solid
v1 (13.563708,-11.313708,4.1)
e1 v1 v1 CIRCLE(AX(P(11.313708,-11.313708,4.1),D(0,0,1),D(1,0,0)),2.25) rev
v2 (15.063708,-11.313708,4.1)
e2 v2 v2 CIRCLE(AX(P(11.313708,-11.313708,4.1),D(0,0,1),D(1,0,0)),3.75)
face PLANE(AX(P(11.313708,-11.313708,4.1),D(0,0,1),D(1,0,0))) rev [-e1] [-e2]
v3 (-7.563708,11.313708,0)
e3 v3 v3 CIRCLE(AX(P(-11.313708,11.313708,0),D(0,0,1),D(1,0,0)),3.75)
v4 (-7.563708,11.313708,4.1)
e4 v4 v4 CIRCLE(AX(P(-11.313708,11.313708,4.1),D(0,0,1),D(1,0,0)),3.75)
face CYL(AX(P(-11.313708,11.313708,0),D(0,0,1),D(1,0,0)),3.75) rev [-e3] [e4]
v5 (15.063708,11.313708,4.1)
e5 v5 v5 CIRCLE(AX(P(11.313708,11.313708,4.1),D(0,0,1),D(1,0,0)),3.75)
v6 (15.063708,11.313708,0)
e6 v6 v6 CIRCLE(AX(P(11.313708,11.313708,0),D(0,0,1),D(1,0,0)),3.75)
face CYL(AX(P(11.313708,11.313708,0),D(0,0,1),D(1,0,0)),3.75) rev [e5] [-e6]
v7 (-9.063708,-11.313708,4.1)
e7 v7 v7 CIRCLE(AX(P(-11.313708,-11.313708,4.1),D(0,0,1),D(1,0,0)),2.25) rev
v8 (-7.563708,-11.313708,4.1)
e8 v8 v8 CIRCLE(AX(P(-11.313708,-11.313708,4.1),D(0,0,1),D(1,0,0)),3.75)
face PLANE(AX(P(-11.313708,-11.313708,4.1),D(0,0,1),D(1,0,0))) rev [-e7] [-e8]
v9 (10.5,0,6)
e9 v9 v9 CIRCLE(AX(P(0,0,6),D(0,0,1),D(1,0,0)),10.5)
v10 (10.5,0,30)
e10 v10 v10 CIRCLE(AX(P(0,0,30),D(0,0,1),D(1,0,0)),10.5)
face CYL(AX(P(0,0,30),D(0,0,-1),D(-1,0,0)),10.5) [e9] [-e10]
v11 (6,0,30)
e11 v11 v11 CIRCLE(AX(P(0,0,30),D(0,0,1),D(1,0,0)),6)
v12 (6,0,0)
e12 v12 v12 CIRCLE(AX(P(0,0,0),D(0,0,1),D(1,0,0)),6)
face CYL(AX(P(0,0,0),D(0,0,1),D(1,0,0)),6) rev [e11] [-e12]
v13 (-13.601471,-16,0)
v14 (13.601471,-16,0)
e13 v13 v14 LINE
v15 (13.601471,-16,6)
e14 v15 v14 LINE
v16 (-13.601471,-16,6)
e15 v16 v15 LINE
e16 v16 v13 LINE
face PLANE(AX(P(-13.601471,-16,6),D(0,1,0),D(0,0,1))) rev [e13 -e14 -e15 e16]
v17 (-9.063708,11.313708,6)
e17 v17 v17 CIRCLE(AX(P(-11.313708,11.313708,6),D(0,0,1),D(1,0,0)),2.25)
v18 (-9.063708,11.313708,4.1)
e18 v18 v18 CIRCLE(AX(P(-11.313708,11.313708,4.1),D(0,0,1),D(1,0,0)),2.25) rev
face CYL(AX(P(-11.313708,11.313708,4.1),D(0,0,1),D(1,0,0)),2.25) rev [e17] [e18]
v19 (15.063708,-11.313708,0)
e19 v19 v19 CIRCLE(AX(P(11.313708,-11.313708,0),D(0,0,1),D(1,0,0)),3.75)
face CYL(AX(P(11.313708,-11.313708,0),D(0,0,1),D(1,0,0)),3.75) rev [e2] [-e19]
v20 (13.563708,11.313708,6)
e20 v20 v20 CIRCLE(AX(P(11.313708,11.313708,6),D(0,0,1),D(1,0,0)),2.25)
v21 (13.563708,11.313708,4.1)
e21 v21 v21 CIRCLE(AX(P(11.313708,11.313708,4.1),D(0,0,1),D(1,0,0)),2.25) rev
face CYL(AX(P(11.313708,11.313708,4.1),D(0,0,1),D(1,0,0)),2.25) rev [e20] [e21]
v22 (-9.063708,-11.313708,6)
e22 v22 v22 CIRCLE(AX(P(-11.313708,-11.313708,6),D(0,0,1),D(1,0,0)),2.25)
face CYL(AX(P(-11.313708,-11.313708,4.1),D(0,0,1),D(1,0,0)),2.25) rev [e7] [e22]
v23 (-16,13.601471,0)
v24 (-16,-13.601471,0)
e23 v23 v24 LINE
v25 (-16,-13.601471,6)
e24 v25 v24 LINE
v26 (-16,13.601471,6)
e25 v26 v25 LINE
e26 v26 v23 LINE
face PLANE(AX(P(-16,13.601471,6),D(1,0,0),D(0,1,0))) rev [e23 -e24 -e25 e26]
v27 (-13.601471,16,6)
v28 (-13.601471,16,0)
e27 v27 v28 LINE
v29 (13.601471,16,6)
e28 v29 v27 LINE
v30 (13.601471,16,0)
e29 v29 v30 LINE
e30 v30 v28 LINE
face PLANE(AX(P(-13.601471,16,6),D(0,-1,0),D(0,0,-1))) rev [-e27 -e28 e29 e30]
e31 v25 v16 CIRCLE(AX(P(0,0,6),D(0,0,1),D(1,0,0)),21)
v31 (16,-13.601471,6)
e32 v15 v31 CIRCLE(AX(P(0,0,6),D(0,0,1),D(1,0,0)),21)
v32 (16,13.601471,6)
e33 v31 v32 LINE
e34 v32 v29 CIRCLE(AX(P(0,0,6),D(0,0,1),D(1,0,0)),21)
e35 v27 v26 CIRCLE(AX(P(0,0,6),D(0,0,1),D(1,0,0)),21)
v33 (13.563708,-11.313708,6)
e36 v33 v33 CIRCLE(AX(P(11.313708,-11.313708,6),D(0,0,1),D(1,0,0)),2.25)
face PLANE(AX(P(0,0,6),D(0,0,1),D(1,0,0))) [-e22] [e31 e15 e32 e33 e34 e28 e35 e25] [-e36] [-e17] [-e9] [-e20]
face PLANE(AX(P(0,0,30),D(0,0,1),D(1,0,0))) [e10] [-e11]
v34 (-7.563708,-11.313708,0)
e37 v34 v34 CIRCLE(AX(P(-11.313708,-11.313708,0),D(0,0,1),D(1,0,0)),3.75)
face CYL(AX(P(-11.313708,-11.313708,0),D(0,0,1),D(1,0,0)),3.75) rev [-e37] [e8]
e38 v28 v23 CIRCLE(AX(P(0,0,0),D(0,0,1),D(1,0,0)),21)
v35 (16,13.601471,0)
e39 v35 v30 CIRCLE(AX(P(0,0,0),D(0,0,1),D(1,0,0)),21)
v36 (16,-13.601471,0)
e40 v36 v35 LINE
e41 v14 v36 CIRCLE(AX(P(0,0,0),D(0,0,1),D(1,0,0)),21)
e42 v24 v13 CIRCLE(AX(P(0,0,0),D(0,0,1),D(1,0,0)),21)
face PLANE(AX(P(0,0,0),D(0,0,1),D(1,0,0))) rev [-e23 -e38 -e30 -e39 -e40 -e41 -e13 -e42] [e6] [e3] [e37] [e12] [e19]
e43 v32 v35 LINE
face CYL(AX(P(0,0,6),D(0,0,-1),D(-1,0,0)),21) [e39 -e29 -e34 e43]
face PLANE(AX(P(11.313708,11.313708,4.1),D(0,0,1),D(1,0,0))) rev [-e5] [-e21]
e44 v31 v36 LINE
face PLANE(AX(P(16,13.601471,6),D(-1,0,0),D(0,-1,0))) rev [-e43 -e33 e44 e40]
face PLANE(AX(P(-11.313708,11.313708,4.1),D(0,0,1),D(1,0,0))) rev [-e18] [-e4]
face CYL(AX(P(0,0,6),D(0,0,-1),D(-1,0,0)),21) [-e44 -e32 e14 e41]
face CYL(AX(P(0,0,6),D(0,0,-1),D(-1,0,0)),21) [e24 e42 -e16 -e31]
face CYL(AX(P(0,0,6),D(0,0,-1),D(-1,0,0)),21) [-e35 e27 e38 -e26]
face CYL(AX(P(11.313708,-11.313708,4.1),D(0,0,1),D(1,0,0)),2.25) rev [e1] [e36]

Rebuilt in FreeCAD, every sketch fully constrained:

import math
import FreeCAD as App
import Part
import Sketcher
Q = App.Units.Quantity

doc = App.newDocument("Part")
body = doc.addObject("PartDesign::Body", "Body")

# Sketch on XY plane
sketch1 = body.newObject("Sketcher::SketchObject", "Sketch")
sketch1.AttachmentSupport = (doc.getObject("XY_Plane"), [""])
sketch1.MapMode = "FlatFace"
sketch1.addGeometry(Part.LineSegment(App.Vector(13.6, 16, 0), App.Vector(-13.6, 16, 0)), False)
sketch1.addGeometry(Part.ArcOfCircle(Part.Circle(App.Vector(0, 0, 0), App.Vector(0, 0, 1), 21), math.radians(130.37), math.radians(139.63)), False)
sketch1.addGeometry(Part.LineSegment(App.Vector(-16, 13.6, 0), App.Vector(-16, -13.6, 0)), False)
sketch1.addGeometry(Part.ArcOfCircle(Part.Circle(App.Vector(0, 0, 0), App.Vector(0, 0, 1), 21), math.radians(-139.63), math.radians(-130.37)), False)
sketch1.addGeometry(Part.LineSegment(App.Vector(-13.6, -16, 0), App.Vector(13.6, -16, 0)), False)
sketch1.addGeometry(Part.ArcOfCircle(Part.Circle(App.Vector(0, 0, 0), App.Vector(0, 0, 1), 21), math.radians(-49.63), math.radians(-40.37)), False)
sketch1.addGeometry(Part.LineSegment(App.Vector(16, -13.6, 0), App.Vector(16, 13.6, 0)), False)
sketch1.addGeometry(Part.ArcOfCircle(Part.Circle(App.Vector(0, 0, 0), App.Vector(0, 0, 1), 21), math.radians(40.37), math.radians(49.63)), False)
sketch1.addConstraint(Sketcher.Constraint("Coincident", 0, 2, 1, 1))
sketch1.addConstraint(Sketcher.Constraint("Coincident", 1, 2, 2, 1))
sketch1.addConstraint(Sketcher.Constraint("Coincident", 2, 2, 3, 1))
sketch1.addConstraint(Sketcher.Constraint("Coincident", 3, 2, 4, 1))
sketch1.addConstraint(Sketcher.Constraint("Coincident", 4, 2, 5, 1))
sketch1.addConstraint(Sketcher.Constraint("Coincident", 5, 2, 6, 1))
sketch1.addConstraint(Sketcher.Constraint("Coincident", 6, 2, 7, 1))
sketch1.addConstraint(Sketcher.Constraint("Coincident", 7, 2, 0, 1))
sketch1.addConstraint(Sketcher.Constraint("Horizontal", 0))
sketch1.addConstraint(Sketcher.Constraint("Vertical", 2))
sketch1.addConstraint(Sketcher.Constraint("Horizontal", 4))
sketch1.addConstraint(Sketcher.Constraint("Vertical", 6))
sketch1.addConstraint(Sketcher.Constraint("Coincident", 1, 3, -1, 1))
sketch1.addConstraint(Sketcher.Constraint("Coincident", 3, 3, -1, 1))
sketch1.addConstraint(Sketcher.Constraint("Coincident", 5, 3, -1, 1))
sketch1.addConstraint(Sketcher.Constraint("Coincident", 7, 3, -1, 1))
sketch1.addConstraint(Sketcher.Constraint("Equal", 1, 3))
sketch1.addConstraint(Sketcher.Constraint("Equal", 3, 5))
sketch1.addConstraint(Sketcher.Constraint("Equal", 5, 7))
sketch1.addConstraint(Sketcher.Constraint("Horizontal", 2, 2, 5, 2))
sketch1.addConstraint(Sketcher.Constraint("Vertical", 0, 2, 3, 2))
sketch1.addConstraint(Sketcher.Constraint("Equal", 4, 2))
sketch1.addConstraint(Sketcher.Constraint("Radius", 1, Q("21 mm")))
sketch1.addConstraint(Sketcher.Constraint("DistanceY", -1, 1, 0, 2, Q("16 mm")))
pad1 = body.newObject("PartDesign::Pad", "Pad")
pad1.Profile = sketch1
pad1.Length = 6

# Sketch on XY plane
sketch2 = body.newObject("Sketcher::SketchObject", "Sketch001")
sketch2.AttachmentSupport = (doc.getObject("XY_Plane"), [""])
sketch2.MapMode = "FlatFace"
sketch2.AttachmentOffset = App.Placement(App.Vector(0, 0, 6), App.Rotation())
sketch2.addGeometry(Part.Circle(App.Vector(0, 0, 0), App.Vector(0, 0, 1), 10), False)
sketch2.addConstraint(Sketcher.Constraint("Coincident", 0, 3, -1, 1))
sketch2.addConstraint(Sketcher.Constraint("Diameter", 0, Q("21 mm")))
pad2 = body.newObject("PartDesign::Pad", "Pad001")
pad2.Profile = sketch2
pad2.Length = 24

# Sketch on XY plane
sketch3 = body.newObject("Sketcher::SketchObject", "Sketch002")
sketch3.AttachmentSupport = (doc.getObject("XY_Plane"), [""])
sketch3.MapMode = "FlatFace"
sketch3.AttachmentOffset = App.Placement(App.Vector(0, 0, 30), App.Rotation())
sketch3.addGeometry(Part.Circle(App.Vector(0, 0, 0), App.Vector(0, 0, 1), 6), False)
sketch3.addConstraint(Sketcher.Constraint("Coincident", 0, 3, -1, 1))
sketch3.addConstraint(Sketcher.Constraint("Diameter", 0, Q("12 mm")))
pocket1 = body.newObject("PartDesign::Pocket", "Pocket")
pocket1.Profile = sketch3
pocket1.Length = 30

# Sketch on XY plane
sketch4 = body.newObject("Sketcher::SketchObject", "Sketch003")
sketch4.AttachmentSupport = (doc.getObject("XY_Plane"), [""])
sketch4.MapMode = "FlatFace"
sketch4.AttachmentOffset = App.Placement(App.Vector(0, 0, 6), App.Rotation())
sketch4.addGeometry(Part.ArcOfCircle(Part.Circle(App.Vector(-11.3, 11.3, 0), App.Vector(0, 0, 1), 2.3), math.radians(0), math.radians(41)), False)
sketch4.addGeometry(Part.ArcOfCircle(Part.Circle(App.Vector(-11.3, 11.3, 0), App.Vector(0, 0, 1), 2.3), math.radians(41), math.radians(135)), False)
sketch4.addGeometry(Part.ArcOfCircle(Part.Circle(App.Vector(-11.3, 11.3, 0), App.Vector(0, 0, 1), 2.3), math.radians(135), math.radians(229)), False)
sketch4.addGeometry(Part.ArcOfCircle(Part.Circle(App.Vector(-11.3, 11.3, 0), App.Vector(0, 0, 1), 2.3), math.radians(-131), math.radians(-45)), False)
sketch4.addGeometry(Part.ArcOfCircle(Part.Circle(App.Vector(-11.3, 11.3, 0), App.Vector(0, 0, 1), 2.3), math.radians(-45), math.radians(0)), False)
sketch4.addGeometry(Part.ArcOfCircle(Part.Circle(App.Vector(11.3, 11.3, 0), App.Vector(0, 0, 1), 2.3), math.radians(-49), math.radians(0)), False)
sketch4.addGeometry(Part.ArcOfCircle(Part.Circle(App.Vector(11.3, 11.3, 0), App.Vector(0, 0, 1), 2.3), math.radians(0), math.radians(45)), False)
sketch4.addGeometry(Part.ArcOfCircle(Part.Circle(App.Vector(11.3, 11.3, 0), App.Vector(0, 0, 1), 2.3), math.radians(45), math.radians(139)), False)
sketch4.addGeometry(Part.ArcOfCircle(Part.Circle(App.Vector(11.3, 11.3, 0), App.Vector(0, 0, 1), 2.3), math.radians(139), math.radians(225)), False)
sketch4.addGeometry(Part.ArcOfCircle(Part.Circle(App.Vector(11.3, 11.3, 0), App.Vector(0, 0, 1), 2.3), math.radians(-135), math.radians(-49)), False)
sketch4.addGeometry(Part.ArcOfCircle(Part.Circle(App.Vector(11.3, -11.3, 0), App.Vector(0, 0, 1), 2.3), math.radians(-139), math.radians(-45)), False)
sketch4.addGeometry(Part.ArcOfCircle(Part.Circle(App.Vector(11.3, -11.3, 0), App.Vector(0, 0, 1), 2.3), math.radians(-45), math.radians(0)), False)
sketch4.addGeometry(Part.ArcOfCircle(Part.Circle(App.Vector(11.3, -11.3, 0), App.Vector(0, 0, 1), 2.3), math.radians(0), math.radians(49)), False)
sketch4.addGeometry(Part.ArcOfCircle(Part.Circle(App.Vector(11.3, -11.3, 0), App.Vector(0, 0, 1), 2.3), math.radians(49), math.radians(135)), False)
sketch4.addGeometry(Part.ArcOfCircle(Part.Circle(App.Vector(11.3, -11.3, 0), App.Vector(0, 0, 1), 2.3), math.radians(135), math.radians(221)), False)
sketch4.addGeometry(Part.ArcOfCircle(Part.Circle(App.Vector(-11.3, -11.3, 0), App.Vector(0, 0, 1), 2.3), math.radians(45), math.radians(131)), False)
sketch4.addGeometry(Part.ArcOfCircle(Part.Circle(App.Vector(-11.3, -11.3, 0), App.Vector(0, 0, 1), 2.3), math.radians(131), math.radians(225)), False)
sketch4.addGeometry(Part.ArcOfCircle(Part.Circle(App.Vector(-11.3, -11.3, 0), App.Vector(0, 0, 1), 2.3), math.radians(-135), math.radians(-41)), False)
sketch4.addGeometry(Part.ArcOfCircle(Part.Circle(App.Vector(-11.3, -11.3, 0), App.Vector(0, 0, 1), 2.3), math.radians(-41), math.radians(0)), False)
sketch4.addGeometry(Part.ArcOfCircle(Part.Circle(App.Vector(-11.3, -11.3, 0), App.Vector(0, 0, 1), 2.3), math.radians(0), math.radians(45)), False)
sketch4.addConstraint(Sketcher.Constraint("Tangent", 0, 2, 1, 1))
sketch4.addConstraint(Sketcher.Constraint("Tangent", 1, 2, 2, 1))
sketch4.addConstraint(Sketcher.Constraint("Tangent", 2, 2, 3, 1))
sketch4.addConstraint(Sketcher.Constraint("Tangent", 3, 2, 4, 1))
sketch4.addConstraint(Sketcher.Constraint("Tangent", 4, 2, 0, 1))
sketch4.addConstraint(Sketcher.Constraint("Tangent", 5, 2, 6, 1))
sketch4.addConstraint(Sketcher.Constraint("Tangent", 6, 2, 7, 1))
sketch4.addConstraint(Sketcher.Constraint("Tangent", 7, 2, 8, 1))
sketch4.addConstraint(Sketcher.Constraint("Tangent", 8, 2, 9, 1))
sketch4.addConstraint(Sketcher.Constraint("Tangent", 9, 2, 5, 1))
sketch4.addConstraint(Sketcher.Constraint("Tangent", 10, 2, 11, 1))
sketch4.addConstraint(Sketcher.Constraint("Tangent", 11, 2, 12, 1))
sketch4.addConstraint(Sketcher.Constraint("Tangent", 12, 2, 13, 1))
sketch4.addConstraint(Sketcher.Constraint("Tangent", 13, 2, 14, 1))
sketch4.addConstraint(Sketcher.Constraint("Tangent", 14, 2, 10, 1))
sketch4.addConstraint(Sketcher.Constraint("Tangent", 15, 2, 16, 1))
sketch4.addConstraint(Sketcher.Constraint("Tangent", 16, 2, 17, 1))
sketch4.addConstraint(Sketcher.Constraint("Tangent", 17, 2, 18, 1))
sketch4.addConstraint(Sketcher.Constraint("Tangent", 18, 2, 19, 1))
sketch4.addConstraint(Sketcher.Constraint("Tangent", 19, 2, 15, 1))
sketch4.addConstraint(Sketcher.Constraint("Coincident", 2, 3, 0, 3))
sketch4.addConstraint(Sketcher.Constraint("Coincident", 7, 3, 5, 3))
sketch4.addConstraint(Sketcher.Constraint("Coincident", 12, 3, 10, 3))
sketch4.addConstraint(Sketcher.Constraint("Coincident", 17, 3, 15, 3))
sketch4.addConstraint(Sketcher.Constraint("Equal", 4, 5))
sketch4.addConstraint(Sketcher.Constraint("Equal", 9, 10))
sketch4.addConstraint(Sketcher.Constraint("Equal", 14, 15))
sketch4.addConstraint(Sketcher.Constraint("Symmetric", 0, 3, 10, 3, -1, 1))
sketch4.addConstraint(Sketcher.Constraint("Symmetric", 5, 3, 15, 3, -1, 1))
sketch4.addConstraint(Sketcher.Constraint("Symmetric", 0, 3, 5, 3, -2))
sketch4.addConstraint(Sketcher.Constraint("Horizontal", 9, 3, 4, 2))
sketch4.addConstraint(Sketcher.Constraint("Horizontal", 4, 2, 5, 2))
sketch4.addConstraint(Sketcher.Constraint("Horizontal", 1, 2, 6, 2))
sketch4.addConstraint(Sketcher.Constraint("Horizontal", 0, 2, 7, 2))
sketch4.addConstraint(Sketcher.Constraint("Horizontal", 3, 2, 8, 2))
sketch4.addConstraint(Sketcher.Constraint("Horizontal", 2, 2, 9, 2))
sketch4.addConstraint(Sketcher.Constraint("Horizontal", 19, 3, 11, 2))
sketch4.addConstraint(Sketcher.Constraint("Horizontal", 12, 2, 15, 2))
sketch4.addConstraint(Sketcher.Constraint("Horizontal", 10, 2, 16, 2))
sketch4.addConstraint(Sketcher.Constraint("Horizontal", 14, 2, 17, 2))
sketch4.addConstraint(Sketcher.Constraint("Horizontal", 11, 2, 18, 2))
sketch4.addConstraint(Sketcher.Constraint("Horizontal", 13, 2, 19, 2))
sketch4.addConstraint(Sketcher.Constraint("Vertical", 6, 2, 10, 2))
sketch4.addConstraint(Sketcher.Constraint("Vertical", 9, 2, 12, 2))
sketch4.addConstraint(Sketcher.Constraint("Vertical", 8, 2, 13, 2))
sketch4.addConstraint(Sketcher.Constraint("Vertical", 7, 2, 14, 2))
sketch4.addConstraint(Sketcher.Constraint("Radius", 0, Q("2.25 mm")))
sketch4.addConstraint(Sketcher.Constraint("DistanceX", 1, 2, -1, 1, Q("12.904699 mm")))
sketch4.addConstraint(Sketcher.Constraint("DistanceY", -1, 1, 1, 2, Q("12.904699 mm")))
sketch4.addConstraint(Sketcher.Constraint("DistanceX", 0, 3, -1, 1, Q("11.313709 mm")))
sketch4.addConstraint(Sketcher.Constraint("DistanceX", 0, 2, -1, 1, Q("9.614789 mm")))
sketch4.addConstraint(Sketcher.Constraint("DistanceY", -1, 1, 2, 2, Q("9.614789 mm")))
sketch4.addConstraint(Sketcher.Constraint("DistanceX", 3, 2, -1, 1, Q("9.722718 mm")))
pocket2 = body.newObject("PartDesign::Pocket", "Pocket001")
pocket2.Profile = sketch4
pocket2.Length = 1.9

# Sketch on XY plane
sketch5 = body.newObject("Sketcher::SketchObject", "Sketch004")
sketch5.AttachmentSupport = (doc.getObject("XY_Plane"), [""])
sketch5.MapMode = "FlatFace"
sketch5.AttachmentOffset = App.Placement(App.Vector(0, 0, 4.1), App.Rotation())
sketch5.addGeometry(Part.Circle(App.Vector(-11.3, 11.3, 0), App.Vector(0, 0, 1), 3.8), False)
sketch5.addGeometry(Part.Circle(App.Vector(11.3, 11.3, 0), App.Vector(0, 0, 1), 3.8), False)
sketch5.addGeometry(Part.Circle(App.Vector(11.3, -11.3, 0), App.Vector(0, 0, 1), 3.8), False)
sketch5.addGeometry(Part.Circle(App.Vector(-11.3, -11.3, 0), App.Vector(0, 0, 1), 3.8), False)
sketch5.addConstraint(Sketcher.Constraint("Equal", 0, 1))
sketch5.addConstraint(Sketcher.Constraint("Equal", 1, 2))
sketch5.addConstraint(Sketcher.Constraint("Equal", 2, 3))
sketch5.addConstraint(Sketcher.Constraint("Symmetric", 0, 3, 2, 3, -1, 1))
sketch5.addConstraint(Sketcher.Constraint("Symmetric", 1, 3, 3, 3, -1, 1))
sketch5.addConstraint(Sketcher.Constraint("Symmetric", 0, 3, 1, 3, -2))
sketch5.addConstraint(Sketcher.Constraint("Diameter", 0, Q("7.5 mm")))
sketch5.addConstraint(Sketcher.Constraint("DistanceX", 0, 3, -1, 1, Q("11.313708 mm")))
sketch5.addConstraint(Sketcher.Constraint("DistanceY", -1, 1, 0, 3, Q("11.313708 mm")))
pocket3 = body.newObject("PartDesign::Pocket", "Pocket002")
pocket3.Profile = sketch5
pocket3.Length = 4.1

doc.recompute()
